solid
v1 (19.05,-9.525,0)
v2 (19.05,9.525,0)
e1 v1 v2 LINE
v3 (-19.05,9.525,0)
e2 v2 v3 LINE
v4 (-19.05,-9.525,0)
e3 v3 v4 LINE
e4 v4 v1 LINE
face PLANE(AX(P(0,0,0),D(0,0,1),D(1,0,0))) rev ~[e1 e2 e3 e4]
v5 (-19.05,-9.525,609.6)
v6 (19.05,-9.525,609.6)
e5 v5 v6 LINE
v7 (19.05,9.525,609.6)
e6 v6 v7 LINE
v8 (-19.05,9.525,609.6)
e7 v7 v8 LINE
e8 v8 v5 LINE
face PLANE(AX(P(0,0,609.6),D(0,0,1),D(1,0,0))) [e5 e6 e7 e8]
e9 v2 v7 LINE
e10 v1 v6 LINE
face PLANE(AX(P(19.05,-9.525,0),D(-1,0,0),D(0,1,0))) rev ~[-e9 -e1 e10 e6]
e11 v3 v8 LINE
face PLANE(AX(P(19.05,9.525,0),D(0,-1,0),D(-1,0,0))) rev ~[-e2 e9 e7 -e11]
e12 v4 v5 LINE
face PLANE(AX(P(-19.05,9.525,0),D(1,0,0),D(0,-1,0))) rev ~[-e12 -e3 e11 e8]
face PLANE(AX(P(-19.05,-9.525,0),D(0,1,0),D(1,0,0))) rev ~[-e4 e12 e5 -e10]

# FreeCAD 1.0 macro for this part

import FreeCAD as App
import Part
import Sketcher

V = App.Vector
Q = App.Units.Quantity


def add_polygon(sketch, points):
    """Adds a closed chain of lines whose ends are joined by coincident constraints."""
    first, n = sketch.GeometryCount, len(points)
    for a, b in zip(points, points[1:] + points[:1]):
        sketch.addGeometry(Part.LineSegment(App.Vector(*a, 0), App.Vector(*b, 0)), False)
    for i in range(n):
        sketch.addConstraint(Sketcher.Constraint("Coincident", first + i, 2, first + (i + 1) % n, 1))

doc = App.newDocument("Part")
body = doc.addObject("PartDesign::Body", "Body")

sketch1 = doc.addObject("Sketcher::SketchObject", "Sketch")
body.addObject(sketch1)
sketch1.AttachmentSupport = (doc.XY_Plane, [""])
sketch1.MapMode = "FlatFace"
add_polygon(sketch1, [(-19.05, 9.525), (-19.05, -9.525), (19.05, -9.525), (19.05, 9.525)])
sketch1.addConstraint(Sketcher.Constraint("Vertical", 0))
sketch1.addConstraint(Sketcher.Constraint("Horizontal", 1))
sketch1.addConstraint(Sketcher.Constraint("Vertical", 2))
sketch1.addConstraint(Sketcher.Constraint("Horizontal", 3))
sketch1.addConstraint(Sketcher.Constraint("Symmetric", 0, 2, 2, 2, -1, 1))
sketch1.addConstraint(Sketcher.Constraint("DistanceX", 1, 1, 1, 2, Q("1.5 in")))
sketch1.addConstraint(Sketcher.Constraint("DistanceY", 0, 2, 0, 1, Q("0.75 in")))
pad1 = doc.addObject("PartDesign::Pad", "Pad")
body.addObject(pad1)
pad1.Profile = sketch1
pad1.Length = Q("24 in")

doc.recompute()
